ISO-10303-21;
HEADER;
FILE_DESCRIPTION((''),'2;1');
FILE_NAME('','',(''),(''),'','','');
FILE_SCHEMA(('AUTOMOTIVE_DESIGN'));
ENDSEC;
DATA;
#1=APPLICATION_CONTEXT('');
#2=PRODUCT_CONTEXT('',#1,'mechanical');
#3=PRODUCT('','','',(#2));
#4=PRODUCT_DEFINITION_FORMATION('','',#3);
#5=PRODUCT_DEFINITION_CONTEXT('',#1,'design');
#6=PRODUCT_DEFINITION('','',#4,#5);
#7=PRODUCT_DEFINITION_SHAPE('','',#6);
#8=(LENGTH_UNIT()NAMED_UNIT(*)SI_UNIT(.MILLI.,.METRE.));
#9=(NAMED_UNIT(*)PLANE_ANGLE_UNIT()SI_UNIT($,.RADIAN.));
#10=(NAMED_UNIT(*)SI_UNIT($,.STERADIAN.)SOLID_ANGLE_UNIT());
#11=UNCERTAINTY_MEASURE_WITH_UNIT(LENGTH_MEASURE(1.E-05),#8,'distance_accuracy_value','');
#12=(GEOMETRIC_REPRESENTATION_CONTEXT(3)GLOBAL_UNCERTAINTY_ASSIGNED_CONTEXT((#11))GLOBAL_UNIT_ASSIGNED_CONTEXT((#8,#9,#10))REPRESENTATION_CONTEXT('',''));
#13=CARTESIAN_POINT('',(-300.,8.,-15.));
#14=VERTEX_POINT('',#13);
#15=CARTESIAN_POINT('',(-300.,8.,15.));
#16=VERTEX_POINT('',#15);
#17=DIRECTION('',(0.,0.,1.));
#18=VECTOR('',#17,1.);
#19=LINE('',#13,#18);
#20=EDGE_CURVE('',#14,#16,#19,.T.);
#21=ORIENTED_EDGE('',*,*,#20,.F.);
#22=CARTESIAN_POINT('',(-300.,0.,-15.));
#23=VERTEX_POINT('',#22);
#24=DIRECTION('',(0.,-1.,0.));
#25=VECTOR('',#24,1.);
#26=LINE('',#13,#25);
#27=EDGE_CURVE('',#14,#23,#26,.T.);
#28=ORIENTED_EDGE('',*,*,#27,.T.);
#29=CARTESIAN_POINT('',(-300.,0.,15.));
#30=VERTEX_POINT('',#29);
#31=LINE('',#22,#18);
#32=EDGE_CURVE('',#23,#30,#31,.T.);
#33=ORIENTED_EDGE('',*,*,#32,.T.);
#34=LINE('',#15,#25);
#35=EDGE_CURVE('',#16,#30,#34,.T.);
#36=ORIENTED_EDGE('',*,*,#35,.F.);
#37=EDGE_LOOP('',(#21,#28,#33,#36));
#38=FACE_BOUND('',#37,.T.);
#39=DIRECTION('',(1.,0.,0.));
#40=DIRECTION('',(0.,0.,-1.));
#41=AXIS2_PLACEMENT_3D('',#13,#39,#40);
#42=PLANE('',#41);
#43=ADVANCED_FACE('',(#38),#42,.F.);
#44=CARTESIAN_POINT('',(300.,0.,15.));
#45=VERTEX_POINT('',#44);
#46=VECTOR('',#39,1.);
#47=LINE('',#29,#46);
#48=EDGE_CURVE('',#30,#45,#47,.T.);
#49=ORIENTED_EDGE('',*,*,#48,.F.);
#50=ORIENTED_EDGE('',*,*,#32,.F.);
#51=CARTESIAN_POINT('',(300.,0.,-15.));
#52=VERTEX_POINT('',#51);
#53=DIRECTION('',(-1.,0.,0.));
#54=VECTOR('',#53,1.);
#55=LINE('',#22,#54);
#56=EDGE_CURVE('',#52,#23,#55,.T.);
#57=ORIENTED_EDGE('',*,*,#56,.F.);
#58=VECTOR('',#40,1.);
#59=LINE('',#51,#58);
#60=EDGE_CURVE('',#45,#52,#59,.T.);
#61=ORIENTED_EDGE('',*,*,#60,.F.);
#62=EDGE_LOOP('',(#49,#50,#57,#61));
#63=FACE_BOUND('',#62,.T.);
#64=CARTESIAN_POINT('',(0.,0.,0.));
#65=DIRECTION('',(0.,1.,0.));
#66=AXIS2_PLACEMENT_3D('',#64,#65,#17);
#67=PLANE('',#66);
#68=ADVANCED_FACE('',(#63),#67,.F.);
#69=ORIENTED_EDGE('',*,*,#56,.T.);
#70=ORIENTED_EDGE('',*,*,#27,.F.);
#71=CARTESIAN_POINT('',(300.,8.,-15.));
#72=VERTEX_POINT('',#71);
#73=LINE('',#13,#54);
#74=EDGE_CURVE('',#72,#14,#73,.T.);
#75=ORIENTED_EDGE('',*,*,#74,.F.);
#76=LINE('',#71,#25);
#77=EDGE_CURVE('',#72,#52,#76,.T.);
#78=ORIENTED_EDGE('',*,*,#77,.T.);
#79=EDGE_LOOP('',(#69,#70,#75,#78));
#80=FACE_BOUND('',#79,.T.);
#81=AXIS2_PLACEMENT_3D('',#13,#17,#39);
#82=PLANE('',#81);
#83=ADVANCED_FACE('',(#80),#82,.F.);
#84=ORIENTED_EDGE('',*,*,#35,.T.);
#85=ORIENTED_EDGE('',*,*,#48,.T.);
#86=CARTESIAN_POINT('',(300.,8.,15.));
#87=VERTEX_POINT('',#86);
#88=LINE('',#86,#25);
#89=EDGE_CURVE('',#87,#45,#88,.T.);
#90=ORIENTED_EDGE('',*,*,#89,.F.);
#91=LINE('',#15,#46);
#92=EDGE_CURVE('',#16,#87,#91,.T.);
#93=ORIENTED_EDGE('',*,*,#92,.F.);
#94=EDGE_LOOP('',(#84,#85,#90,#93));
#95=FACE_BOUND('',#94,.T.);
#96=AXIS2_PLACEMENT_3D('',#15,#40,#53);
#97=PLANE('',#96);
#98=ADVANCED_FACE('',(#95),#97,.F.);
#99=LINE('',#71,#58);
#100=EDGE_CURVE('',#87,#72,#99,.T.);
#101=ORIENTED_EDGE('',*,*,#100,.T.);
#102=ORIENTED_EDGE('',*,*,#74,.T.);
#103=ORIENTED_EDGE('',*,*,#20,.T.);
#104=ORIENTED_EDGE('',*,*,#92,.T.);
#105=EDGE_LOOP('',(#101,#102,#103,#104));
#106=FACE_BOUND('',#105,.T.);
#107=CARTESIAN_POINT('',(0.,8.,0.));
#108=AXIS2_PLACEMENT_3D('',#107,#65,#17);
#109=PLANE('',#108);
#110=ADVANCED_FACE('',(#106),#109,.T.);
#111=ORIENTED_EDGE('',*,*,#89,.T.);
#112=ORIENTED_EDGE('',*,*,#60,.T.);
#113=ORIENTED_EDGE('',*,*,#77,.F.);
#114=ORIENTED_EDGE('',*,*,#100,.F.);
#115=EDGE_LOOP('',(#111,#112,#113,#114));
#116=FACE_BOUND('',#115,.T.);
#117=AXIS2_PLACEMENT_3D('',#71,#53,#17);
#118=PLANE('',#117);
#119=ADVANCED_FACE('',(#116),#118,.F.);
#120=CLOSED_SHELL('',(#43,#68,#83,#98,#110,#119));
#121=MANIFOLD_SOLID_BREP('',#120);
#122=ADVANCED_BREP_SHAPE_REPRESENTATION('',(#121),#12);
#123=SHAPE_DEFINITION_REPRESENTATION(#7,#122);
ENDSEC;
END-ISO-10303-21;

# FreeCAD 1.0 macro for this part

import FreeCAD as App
import Part
import Sketcher

V = App.Vector

doc = App.newDocument("Part")
body = doc.addObject("PartDesign::Body", "Body")

# Sketch on XZ plane
sketch1 = body.newObject("Sketcher::SketchObject", "Sketch")
sketch1.AttachmentSupport = (doc.getObject("XZ_Plane"), [""])
sketch1.MapMode = "FlatFace"
sketch1.addGeometry(Part.LineSegment(V(-300, -15, 0), V(-300, 15, 0)), False)
sketch1.addGeometry(Part.LineSegment(V(-300, 15, 0), V(300, 15, 0)), False)
sketch1.addGeometry(Part.LineSegment(V(300, 15, 0), V(300, -15, 0)), False)
sketch1.addGeometry(Part.LineSegment(V(300, -15, 0), V(-300, -15, 0)), False)
sketch1.addConstraint(Sketcher.Constraint("Coincident", 0, 2, 1, 1))
sketch1.addConstraint(Sketcher.Constraint("Coincident", 1, 2, 2, 1))
sketch1.addConstraint(Sketcher.Constraint("Coincident", 2, 2, 3, 1))
sketch1.addConstraint(Sketcher.Constraint("Coincident", 3, 2, 0, 1))
sketch1.addConstraint(Sketcher.Constraint("Vertical", 0))
sketch1.addConstraint(Sketcher.Constraint("Horizontal", 1))
sketch1.addConstraint(Sketcher.Constraint("Vertical", 2))
sketch1.addConstraint(Sketcher.Constraint("Horizontal", 3))
sketch1.addConstraint(Sketcher.Constraint("Symmetric", 0, 2, 2, 2, -1, 1))
sketch1.addConstraint(Sketcher.Constraint("DistanceX", 1, 1, 1, 2, 600.0))
sketch1.addConstraint(Sketcher.Constraint("DistanceY", 0, 1, 0, 2, 30.0))
pad1 = body.newObject("PartDesign::Pad", "Pad")
pad1.Profile = sketch1
pad1.Length = 8
pad1.Reversed = True

doc.recompute()
